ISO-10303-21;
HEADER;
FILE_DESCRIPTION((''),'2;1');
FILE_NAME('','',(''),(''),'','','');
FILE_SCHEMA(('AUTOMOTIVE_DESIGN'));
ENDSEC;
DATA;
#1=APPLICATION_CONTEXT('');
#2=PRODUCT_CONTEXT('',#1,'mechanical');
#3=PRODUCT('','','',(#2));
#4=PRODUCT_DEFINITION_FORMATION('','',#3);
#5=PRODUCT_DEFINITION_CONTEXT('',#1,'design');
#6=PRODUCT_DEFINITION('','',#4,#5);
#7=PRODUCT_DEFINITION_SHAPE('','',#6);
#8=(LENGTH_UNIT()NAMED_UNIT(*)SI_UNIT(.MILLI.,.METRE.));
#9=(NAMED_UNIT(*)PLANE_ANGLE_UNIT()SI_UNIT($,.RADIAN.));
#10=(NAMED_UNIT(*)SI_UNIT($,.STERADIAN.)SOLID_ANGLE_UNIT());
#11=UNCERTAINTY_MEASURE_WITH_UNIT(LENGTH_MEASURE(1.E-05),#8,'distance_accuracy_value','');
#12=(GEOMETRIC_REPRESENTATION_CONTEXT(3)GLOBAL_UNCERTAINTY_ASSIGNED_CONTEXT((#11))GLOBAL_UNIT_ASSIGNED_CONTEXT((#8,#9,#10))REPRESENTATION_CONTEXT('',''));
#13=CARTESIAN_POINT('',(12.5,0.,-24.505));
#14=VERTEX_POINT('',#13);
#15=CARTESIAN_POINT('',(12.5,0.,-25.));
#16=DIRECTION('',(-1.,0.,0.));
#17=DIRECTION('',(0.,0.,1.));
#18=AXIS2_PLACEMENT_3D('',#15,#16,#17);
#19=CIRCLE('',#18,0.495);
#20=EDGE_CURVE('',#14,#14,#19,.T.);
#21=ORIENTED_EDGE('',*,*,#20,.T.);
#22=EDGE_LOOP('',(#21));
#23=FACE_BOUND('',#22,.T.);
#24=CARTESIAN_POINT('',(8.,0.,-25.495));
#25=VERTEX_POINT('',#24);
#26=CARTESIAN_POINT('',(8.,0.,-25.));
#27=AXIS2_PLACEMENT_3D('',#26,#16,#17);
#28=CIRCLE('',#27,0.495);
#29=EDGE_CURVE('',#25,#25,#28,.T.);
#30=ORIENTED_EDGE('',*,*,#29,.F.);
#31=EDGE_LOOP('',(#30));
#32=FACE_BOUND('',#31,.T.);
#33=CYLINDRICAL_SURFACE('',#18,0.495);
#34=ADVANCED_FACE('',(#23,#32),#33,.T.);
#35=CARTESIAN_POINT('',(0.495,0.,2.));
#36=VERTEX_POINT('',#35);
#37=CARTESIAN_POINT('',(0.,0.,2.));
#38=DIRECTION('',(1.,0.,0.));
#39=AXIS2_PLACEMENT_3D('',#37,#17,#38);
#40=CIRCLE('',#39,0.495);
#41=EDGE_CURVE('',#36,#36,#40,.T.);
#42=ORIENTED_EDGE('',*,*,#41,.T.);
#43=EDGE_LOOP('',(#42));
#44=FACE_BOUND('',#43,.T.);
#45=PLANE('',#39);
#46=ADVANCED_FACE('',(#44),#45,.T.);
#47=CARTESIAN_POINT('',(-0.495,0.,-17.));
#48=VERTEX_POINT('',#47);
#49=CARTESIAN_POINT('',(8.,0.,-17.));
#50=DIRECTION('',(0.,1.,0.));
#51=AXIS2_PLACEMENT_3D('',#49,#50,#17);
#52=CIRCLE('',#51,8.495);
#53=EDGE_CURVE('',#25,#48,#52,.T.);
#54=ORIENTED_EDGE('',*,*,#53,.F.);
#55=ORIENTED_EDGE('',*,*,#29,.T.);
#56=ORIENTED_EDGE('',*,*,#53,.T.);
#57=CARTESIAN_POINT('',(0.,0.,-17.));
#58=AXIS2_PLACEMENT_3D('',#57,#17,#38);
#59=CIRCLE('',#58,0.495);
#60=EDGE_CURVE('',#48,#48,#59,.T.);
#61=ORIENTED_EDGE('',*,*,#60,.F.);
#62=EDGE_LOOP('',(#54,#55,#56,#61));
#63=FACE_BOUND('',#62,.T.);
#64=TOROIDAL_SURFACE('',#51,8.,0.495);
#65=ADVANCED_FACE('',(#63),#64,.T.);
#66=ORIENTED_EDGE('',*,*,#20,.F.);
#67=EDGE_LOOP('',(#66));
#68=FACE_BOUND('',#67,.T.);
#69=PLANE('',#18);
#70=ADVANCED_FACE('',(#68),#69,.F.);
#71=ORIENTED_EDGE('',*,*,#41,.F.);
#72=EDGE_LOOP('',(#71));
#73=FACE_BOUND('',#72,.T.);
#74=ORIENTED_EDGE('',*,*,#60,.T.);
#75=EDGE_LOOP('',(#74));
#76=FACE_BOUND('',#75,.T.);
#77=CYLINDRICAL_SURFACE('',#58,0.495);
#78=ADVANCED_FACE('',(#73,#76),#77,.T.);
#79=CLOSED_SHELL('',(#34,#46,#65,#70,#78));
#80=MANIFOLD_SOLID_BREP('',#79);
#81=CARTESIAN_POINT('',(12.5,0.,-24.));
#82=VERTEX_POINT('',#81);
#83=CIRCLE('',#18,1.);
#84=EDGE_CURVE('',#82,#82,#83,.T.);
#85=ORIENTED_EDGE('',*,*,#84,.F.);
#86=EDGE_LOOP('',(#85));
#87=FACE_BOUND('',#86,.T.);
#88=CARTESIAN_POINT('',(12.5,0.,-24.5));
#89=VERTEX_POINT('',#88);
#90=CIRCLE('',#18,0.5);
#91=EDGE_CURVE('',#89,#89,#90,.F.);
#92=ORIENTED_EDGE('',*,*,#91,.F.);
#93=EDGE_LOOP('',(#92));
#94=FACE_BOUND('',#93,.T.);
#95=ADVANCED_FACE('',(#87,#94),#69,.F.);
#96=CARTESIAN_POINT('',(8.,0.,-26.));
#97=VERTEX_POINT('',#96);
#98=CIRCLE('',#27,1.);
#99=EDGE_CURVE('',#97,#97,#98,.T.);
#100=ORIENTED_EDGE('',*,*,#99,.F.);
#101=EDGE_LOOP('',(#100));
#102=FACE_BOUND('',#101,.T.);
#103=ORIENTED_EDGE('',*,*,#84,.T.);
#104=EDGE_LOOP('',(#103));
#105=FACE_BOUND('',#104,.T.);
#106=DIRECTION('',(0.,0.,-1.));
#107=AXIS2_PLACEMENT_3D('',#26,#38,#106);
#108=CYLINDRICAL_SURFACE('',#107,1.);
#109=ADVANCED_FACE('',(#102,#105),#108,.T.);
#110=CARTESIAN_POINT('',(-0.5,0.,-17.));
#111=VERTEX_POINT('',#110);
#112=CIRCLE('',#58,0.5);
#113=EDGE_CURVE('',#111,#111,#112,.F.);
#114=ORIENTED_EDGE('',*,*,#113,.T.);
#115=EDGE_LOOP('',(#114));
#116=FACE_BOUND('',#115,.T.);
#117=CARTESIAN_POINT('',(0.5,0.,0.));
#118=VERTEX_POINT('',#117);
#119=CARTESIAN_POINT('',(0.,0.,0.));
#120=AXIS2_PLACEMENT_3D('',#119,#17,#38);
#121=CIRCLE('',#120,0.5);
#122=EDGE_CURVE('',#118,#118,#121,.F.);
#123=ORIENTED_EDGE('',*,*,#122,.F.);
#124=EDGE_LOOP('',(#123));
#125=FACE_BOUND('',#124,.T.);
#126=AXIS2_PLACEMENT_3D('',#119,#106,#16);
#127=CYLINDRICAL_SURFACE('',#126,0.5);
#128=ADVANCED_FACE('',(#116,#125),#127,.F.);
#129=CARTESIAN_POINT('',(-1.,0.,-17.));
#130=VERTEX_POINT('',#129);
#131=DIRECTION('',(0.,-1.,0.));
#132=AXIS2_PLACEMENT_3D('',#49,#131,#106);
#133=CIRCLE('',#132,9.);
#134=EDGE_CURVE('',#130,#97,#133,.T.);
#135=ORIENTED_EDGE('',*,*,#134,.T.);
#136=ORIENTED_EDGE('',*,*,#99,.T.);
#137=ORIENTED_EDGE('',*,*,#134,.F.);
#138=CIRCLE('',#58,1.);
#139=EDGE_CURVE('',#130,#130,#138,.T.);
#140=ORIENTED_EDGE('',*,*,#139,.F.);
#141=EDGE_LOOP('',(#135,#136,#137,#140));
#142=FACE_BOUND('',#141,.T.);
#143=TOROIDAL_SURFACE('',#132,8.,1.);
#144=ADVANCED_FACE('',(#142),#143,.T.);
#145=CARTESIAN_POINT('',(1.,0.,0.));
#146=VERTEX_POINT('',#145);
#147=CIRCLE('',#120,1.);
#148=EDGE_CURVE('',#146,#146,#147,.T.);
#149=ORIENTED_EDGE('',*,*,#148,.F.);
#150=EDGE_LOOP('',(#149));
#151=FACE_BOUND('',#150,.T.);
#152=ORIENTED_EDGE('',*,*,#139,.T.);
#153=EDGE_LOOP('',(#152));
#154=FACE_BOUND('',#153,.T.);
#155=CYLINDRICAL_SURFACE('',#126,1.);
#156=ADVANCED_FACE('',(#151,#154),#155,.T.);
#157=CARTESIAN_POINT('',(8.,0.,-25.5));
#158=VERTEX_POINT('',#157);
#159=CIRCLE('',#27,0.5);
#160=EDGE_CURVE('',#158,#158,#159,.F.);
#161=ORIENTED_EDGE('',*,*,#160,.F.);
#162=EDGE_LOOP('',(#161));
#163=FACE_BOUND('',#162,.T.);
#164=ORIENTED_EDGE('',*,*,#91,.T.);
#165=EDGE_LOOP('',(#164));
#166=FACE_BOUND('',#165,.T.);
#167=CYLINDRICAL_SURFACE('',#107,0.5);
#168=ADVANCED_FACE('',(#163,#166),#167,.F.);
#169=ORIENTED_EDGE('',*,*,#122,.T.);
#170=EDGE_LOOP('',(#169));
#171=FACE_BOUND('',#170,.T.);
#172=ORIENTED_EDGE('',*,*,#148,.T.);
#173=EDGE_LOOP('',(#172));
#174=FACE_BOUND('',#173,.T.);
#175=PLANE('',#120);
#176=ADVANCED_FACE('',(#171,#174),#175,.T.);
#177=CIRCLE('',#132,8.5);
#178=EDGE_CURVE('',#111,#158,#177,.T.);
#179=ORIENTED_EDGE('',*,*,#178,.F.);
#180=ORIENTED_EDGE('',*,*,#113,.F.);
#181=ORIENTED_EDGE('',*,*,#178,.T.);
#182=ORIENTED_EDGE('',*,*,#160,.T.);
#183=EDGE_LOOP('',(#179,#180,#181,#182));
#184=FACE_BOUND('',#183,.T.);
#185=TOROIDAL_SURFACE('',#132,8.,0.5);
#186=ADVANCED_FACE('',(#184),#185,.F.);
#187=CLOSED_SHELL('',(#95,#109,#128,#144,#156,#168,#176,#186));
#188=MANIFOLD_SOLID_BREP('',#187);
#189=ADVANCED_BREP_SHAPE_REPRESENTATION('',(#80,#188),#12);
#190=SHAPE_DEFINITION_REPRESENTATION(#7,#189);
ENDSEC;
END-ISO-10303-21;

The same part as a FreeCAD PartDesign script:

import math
import FreeCAD as App
import Part
import Sketcher
Q = App.Units.Quantity

doc = App.newDocument("Part")
body = doc.addObject("PartDesign::Body", "Body")

# Sketch on XY plane
sketch1 = body.newObject("Sketcher::SketchObject", "Sketch")
sketch1.AttachmentSupport = (doc.getObject("XY_Plane"), [""])
sketch1.MapMode = "FlatFace"
sketch1.addGeometry([
    Part.Circle(App.Vector(0, 0, 0), App.Vector(0, 0, 1), 1),
    Part.Circle(App.Vector(0, 0, 0), App.Vector(0, 0, 1), 0.5),
], False)
sketch1.addConstraint([
    Sketcher.Constraint("Coincident", 0, 3, -1, 1),
    Sketcher.Constraint("Coincident", 1, 3, -1, 1),
    Sketcher.Constraint("Diameter", 0, Q("2 mm")),
    Sketcher.Constraint("Diameter", 1, Q("1 mm")),
])

# Sketch on XZ plane
sketch2 = body.newObject("Sketcher::SketchObject", "Sketch001")
sketch2.AttachmentSupport = (doc.getObject("XZ_Plane"), [""])
sketch2.MapMode = "FlatFace"
sketch2.addGeometry([
    Part.LineSegment(App.Vector(0, 0, 0), App.Vector(0, -17, 0)),
    Part.ArcOfCircle(Part.Circle(App.Vector(8, -17, 0), App.Vector(0, 0, 1), 8), math.radians(-180), math.radians(-90)),
    Part.LineSegment(App.Vector(8, -25, 0), App.Vector(12.5, -25, 0)),
], False)
sketch2.addConstraint([
    Sketcher.Constraint("Tangent", 0, 2, 1, 1),
    Sketcher.Constraint("Tangent", 1, 2, 2, 1),
    Sketcher.Constraint("Vertical", 0),
    Sketcher.Constraint("Horizontal", 2),
    Sketcher.Constraint("Coincident", 0, 1, -1, 1),
    Sketcher.Constraint("Radius", 1, Q("8 mm")),
    Sketcher.Constraint("DistanceY", 0, 2, 0, 1, Q("17 mm")),
    Sketcher.Constraint("DistanceX", 2, 1, 2, 2, Q("4.5 mm")),
])
doc.recompute()

additivepipe = body.newObject("PartDesign::AdditivePipe", "AdditivePipe")
additivepipe.Profile = sketch1
additivepipe.Spine = (sketch2, ["Edge1", "Edge2", "Edge3"])
body2 = doc.addObject("PartDesign::Body", "Body001")

# Sketch on XY plane
sketch3 = body2.newObject("Sketcher::SketchObject", "Sketch002")
sketch3.AttachmentSupport = (doc.getObject("XY_Plane001"), [""])
sketch3.MapMode = "FlatFace"
sketch3.addGeometry(Part.Circle(App.Vector(0, 0, 0), App.Vector(0, 0, 1), 0.49), False)
sketch3.addConstraint([
    Sketcher.Constraint("Coincident", 0, 3, -1, 1),
    Sketcher.Constraint("Diameter", 0, Q("0.99 mm")),
])

# Sketch on XZ plane
sketch4 = body2.newObject("Sketcher::SketchObject", "Sketch003")
sketch4.AttachmentSupport = (doc.getObject("XZ_Plane001"), [""])
sketch4.MapMode = "FlatFace"
sketch4.addGeometry([
    Part.LineSegment(App.Vector(12.5, -25, 0), App.Vector(8, -25, 0)),
    Part.ArcOfCircle(Part.Circle(App.Vector(8, -17, 0), App.Vector(0, 0, 1), 8), math.radians(-180), math.radians(-90)),
    Part.LineSegment(App.Vector(0, -17, 0), App.Vector(0, 2, 0)),
], False)
sketch4.addConstraint([
    Sketcher.Constraint("Tangent", 0, 2, 1, 2),
    Sketcher.Constraint("Tangent", 1, 1, 2, 1),
    Sketcher.Constraint("Horizontal", 0),
    Sketcher.Constraint("Vertical", 2),
    Sketcher.Constraint("PointOnObject", 1, 1, -2),
    Sketcher.Constraint("Radius", 1, Q("8 mm")),
    Sketcher.Constraint("DistanceY", 2, 1, 2, 2, Q("19 mm")),
    Sketcher.Constraint("DistanceX", 0, 2, 0, 1, Q("4.5 mm")),
    Sketcher.Constraint("DistanceY", 1, 3, -1, 1, Q("17 mm")),
])
doc.recompute()

additivepipe2 = body2.newObject("PartDesign::AdditivePipe", "AdditivePipe001")
additivepipe2.Profile = sketch3
additivepipe2.Spine = (sketch4, ["Edge1", "Edge2", "Edge3"])

doc.recompute()
